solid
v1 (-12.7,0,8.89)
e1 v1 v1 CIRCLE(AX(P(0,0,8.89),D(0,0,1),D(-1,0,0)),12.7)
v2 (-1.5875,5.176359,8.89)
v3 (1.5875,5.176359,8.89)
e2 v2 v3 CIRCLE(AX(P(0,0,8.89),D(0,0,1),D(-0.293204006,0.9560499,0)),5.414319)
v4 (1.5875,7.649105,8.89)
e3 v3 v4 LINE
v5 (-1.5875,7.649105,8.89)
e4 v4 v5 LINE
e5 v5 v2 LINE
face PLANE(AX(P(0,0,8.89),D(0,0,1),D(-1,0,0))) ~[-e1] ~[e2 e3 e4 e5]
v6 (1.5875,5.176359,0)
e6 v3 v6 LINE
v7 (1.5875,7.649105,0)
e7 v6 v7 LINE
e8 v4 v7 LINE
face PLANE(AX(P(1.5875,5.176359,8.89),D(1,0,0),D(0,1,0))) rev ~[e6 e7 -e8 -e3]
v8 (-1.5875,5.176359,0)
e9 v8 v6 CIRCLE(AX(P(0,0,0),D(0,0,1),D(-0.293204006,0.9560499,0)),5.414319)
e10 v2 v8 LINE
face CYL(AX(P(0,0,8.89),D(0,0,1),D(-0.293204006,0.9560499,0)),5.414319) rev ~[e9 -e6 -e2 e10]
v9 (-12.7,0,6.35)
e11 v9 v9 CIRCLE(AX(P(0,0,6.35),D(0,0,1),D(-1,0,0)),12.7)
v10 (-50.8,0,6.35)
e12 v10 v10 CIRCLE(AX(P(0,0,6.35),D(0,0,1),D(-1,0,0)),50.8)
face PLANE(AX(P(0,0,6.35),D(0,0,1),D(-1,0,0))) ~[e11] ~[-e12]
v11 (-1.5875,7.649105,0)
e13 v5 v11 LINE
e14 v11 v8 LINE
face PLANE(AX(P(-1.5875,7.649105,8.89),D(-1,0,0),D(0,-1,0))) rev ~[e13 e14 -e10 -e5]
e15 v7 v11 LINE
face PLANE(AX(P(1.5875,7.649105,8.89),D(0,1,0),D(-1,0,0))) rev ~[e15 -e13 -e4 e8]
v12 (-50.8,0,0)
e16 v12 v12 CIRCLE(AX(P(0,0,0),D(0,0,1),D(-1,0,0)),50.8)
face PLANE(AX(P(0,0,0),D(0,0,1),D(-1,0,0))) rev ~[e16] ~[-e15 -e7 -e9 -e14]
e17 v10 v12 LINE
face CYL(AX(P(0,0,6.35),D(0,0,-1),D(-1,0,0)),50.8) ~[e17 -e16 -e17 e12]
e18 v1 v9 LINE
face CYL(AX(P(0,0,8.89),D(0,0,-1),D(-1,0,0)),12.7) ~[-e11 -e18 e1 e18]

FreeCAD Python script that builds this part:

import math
import FreeCAD as App
import Part
import Sketcher
from FreeCAD import Vector
Q = App.Units.Quantity


def add_polygon(sketch, points):
    """Adds a closed chain of lines whose ends are joined by coincident constraints."""
    first, n = sketch.GeometryCount, len(points)
    for a, b in zip(points, points[1:] + points[:1]):
        sketch.addGeometry(Part.LineSegment(App.Vector(*a, 0), App.Vector(*b, 0)), False)
    for i in range(n):
        sketch.addConstraint(Sketcher.Constraint("Coincident", first + i, 2, first + (i + 1) % n, 1))

doc = App.newDocument("Part")
params = doc.addObject("Spreadsheet::Sheet", "Params")
for row, (alias, value) in enumerate([
    ("sketch1_width", "2 in"),
    ("sketch1_width2", "0.5 in"),
    ("sketch1_height", "0.1 in"),
    ("sketch1_height2", "0.35 in"),
    ("revolution_angle", "360 deg"),
    ("sketch2_width", "0.125 in"),
    ("pocket1_length", "1 in"),
], start=1):
    params.set(f"A{row}", alias)
    params.set(f"B{row}", "=" + value)
    params.setAlias(f"B{row}", alias)

body = doc.addObject("PartDesign::Body", "Body")

# Sketch on XZ plane
sketch1 = doc.addObject("Sketcher::SketchObject", "Sketch")
body.addObject(sketch1)
sketch1.AttachmentSupport = (doc.XZ_Plane, [""])
sketch1.MapMode = "FlatFace"
add_polygon(sketch1, [(0, 0), (0, 8.9), (-12.7, 8.9), (-12.7, 6.3), (-50.8, 6.3), (-50.8, 0)])  # lines 0-5
sketch1.addConstraint([
    Sketcher.Constraint("Vertical", 0),
    Sketcher.Constraint("Horizontal", 1),
    Sketcher.Constraint("Vertical", 2),
    Sketcher.Constraint("Horizontal", 3),
    Sketcher.Constraint("Vertical", 4),
    Sketcher.Constraint("Horizontal", 5),
    Sketcher.Constraint("Coincident", 5, 2, -1, 1),
    Sketcher.Constraint("DistanceX", 5, 1, 5, 2, Q("2 in")),
    Sketcher.Constraint("DistanceX", 1, 2, 1, 1, Q("0.5 in")),
    Sketcher.Constraint("DistanceY", 2, 2, 2, 1, Q("0.1 in")),
    Sketcher.Constraint("DistanceY", 0, 1, 0, 2, Q("0.35 in")),
])
sketch1.setExpression("Constraints[13]", "Params.sketch1_width")
sketch1.setExpression("Constraints[14]", "Params.sketch1_width2")
sketch1.setExpression("Constraints[15]", "Params.sketch1_height")
sketch1.setExpression("Constraints[16]", "Params.sketch1_height2")
revolution = doc.addObject("PartDesign::Revolution", "Revolution")
body.addObject(revolution)
revolution.Profile = sketch1
revolution.ReferenceAxis = (sketch1, ["V_Axis"])
revolution.setExpression("Angle", "Params.revolution_angle")

# Sketch on XY plane
sketch2 = doc.addObject("Sketcher::SketchObject", "Sketch001")
body.addObject(sketch2)
sketch2.AttachmentSupport = (doc.XY_Plane, [""])
sketch2.MapMode = "FlatFace"
sketch2.AttachmentOffset = App.Placement(Vector(0, 0, 0.35 * 25.4), App.Rotation())
sketch2.addGeometry([
    Part.LineSegment(Vector(-1.6, 7.6, 0), Vector(-1.6, 5.2, 0)),
    Part.ArcOfCircle(Part.Circle(Vector(0, 0, 0), Vector(0, 0, 1), 5.4), math.radians(107), math.radians(433)),
    Part.LineSegment(Vector(1.6, 5.2, 0), Vector(1.6, 7.6, 0)),
    Part.LineSegment(Vector(1.6, 7.6, 0), Vector(-1.6, 7.6, 0)),
], False)
sketch2.addConstraint([
    Sketcher.Constraint("Coincident", 0, 2, 1, 1),
    Sketcher.Constraint("Coincident", 1, 2, 2, 1),
    Sketcher.Constraint("Coincident", 2, 2, 3, 1),
    Sketcher.Constraint("Coincident", 3, 2, 0, 1),
    Sketcher.Constraint("Vertical", 0),
    Sketcher.Constraint("Vertical", 2),
    Sketcher.Constraint("Horizontal", 3),
    Sketcher.Constraint("Coincident", 1, 3, -1, 1),
    Sketcher.Constraint("Horizontal", 0, 2, 1, 2),
    Sketcher.Constraint("DistanceX", 3, 2, 3, 1, Q("0.125 in")),
    Sketcher.Constraint("Radius", 1, 5.414319),
    Sketcher.Constraint("DistanceY", 0, 2, 0, 1, 2.472746),
])
sketch2.setExpression("Constraints[9]", "Params.sketch2_width")
pocket1 = doc.addObject("PartDesign::Pocket", "Pocket")
body.addObject(pocket1)
pocket1.Profile = sketch2
pocket1.setExpression("Length", "Params.pocket1_length")

doc.recompute()
